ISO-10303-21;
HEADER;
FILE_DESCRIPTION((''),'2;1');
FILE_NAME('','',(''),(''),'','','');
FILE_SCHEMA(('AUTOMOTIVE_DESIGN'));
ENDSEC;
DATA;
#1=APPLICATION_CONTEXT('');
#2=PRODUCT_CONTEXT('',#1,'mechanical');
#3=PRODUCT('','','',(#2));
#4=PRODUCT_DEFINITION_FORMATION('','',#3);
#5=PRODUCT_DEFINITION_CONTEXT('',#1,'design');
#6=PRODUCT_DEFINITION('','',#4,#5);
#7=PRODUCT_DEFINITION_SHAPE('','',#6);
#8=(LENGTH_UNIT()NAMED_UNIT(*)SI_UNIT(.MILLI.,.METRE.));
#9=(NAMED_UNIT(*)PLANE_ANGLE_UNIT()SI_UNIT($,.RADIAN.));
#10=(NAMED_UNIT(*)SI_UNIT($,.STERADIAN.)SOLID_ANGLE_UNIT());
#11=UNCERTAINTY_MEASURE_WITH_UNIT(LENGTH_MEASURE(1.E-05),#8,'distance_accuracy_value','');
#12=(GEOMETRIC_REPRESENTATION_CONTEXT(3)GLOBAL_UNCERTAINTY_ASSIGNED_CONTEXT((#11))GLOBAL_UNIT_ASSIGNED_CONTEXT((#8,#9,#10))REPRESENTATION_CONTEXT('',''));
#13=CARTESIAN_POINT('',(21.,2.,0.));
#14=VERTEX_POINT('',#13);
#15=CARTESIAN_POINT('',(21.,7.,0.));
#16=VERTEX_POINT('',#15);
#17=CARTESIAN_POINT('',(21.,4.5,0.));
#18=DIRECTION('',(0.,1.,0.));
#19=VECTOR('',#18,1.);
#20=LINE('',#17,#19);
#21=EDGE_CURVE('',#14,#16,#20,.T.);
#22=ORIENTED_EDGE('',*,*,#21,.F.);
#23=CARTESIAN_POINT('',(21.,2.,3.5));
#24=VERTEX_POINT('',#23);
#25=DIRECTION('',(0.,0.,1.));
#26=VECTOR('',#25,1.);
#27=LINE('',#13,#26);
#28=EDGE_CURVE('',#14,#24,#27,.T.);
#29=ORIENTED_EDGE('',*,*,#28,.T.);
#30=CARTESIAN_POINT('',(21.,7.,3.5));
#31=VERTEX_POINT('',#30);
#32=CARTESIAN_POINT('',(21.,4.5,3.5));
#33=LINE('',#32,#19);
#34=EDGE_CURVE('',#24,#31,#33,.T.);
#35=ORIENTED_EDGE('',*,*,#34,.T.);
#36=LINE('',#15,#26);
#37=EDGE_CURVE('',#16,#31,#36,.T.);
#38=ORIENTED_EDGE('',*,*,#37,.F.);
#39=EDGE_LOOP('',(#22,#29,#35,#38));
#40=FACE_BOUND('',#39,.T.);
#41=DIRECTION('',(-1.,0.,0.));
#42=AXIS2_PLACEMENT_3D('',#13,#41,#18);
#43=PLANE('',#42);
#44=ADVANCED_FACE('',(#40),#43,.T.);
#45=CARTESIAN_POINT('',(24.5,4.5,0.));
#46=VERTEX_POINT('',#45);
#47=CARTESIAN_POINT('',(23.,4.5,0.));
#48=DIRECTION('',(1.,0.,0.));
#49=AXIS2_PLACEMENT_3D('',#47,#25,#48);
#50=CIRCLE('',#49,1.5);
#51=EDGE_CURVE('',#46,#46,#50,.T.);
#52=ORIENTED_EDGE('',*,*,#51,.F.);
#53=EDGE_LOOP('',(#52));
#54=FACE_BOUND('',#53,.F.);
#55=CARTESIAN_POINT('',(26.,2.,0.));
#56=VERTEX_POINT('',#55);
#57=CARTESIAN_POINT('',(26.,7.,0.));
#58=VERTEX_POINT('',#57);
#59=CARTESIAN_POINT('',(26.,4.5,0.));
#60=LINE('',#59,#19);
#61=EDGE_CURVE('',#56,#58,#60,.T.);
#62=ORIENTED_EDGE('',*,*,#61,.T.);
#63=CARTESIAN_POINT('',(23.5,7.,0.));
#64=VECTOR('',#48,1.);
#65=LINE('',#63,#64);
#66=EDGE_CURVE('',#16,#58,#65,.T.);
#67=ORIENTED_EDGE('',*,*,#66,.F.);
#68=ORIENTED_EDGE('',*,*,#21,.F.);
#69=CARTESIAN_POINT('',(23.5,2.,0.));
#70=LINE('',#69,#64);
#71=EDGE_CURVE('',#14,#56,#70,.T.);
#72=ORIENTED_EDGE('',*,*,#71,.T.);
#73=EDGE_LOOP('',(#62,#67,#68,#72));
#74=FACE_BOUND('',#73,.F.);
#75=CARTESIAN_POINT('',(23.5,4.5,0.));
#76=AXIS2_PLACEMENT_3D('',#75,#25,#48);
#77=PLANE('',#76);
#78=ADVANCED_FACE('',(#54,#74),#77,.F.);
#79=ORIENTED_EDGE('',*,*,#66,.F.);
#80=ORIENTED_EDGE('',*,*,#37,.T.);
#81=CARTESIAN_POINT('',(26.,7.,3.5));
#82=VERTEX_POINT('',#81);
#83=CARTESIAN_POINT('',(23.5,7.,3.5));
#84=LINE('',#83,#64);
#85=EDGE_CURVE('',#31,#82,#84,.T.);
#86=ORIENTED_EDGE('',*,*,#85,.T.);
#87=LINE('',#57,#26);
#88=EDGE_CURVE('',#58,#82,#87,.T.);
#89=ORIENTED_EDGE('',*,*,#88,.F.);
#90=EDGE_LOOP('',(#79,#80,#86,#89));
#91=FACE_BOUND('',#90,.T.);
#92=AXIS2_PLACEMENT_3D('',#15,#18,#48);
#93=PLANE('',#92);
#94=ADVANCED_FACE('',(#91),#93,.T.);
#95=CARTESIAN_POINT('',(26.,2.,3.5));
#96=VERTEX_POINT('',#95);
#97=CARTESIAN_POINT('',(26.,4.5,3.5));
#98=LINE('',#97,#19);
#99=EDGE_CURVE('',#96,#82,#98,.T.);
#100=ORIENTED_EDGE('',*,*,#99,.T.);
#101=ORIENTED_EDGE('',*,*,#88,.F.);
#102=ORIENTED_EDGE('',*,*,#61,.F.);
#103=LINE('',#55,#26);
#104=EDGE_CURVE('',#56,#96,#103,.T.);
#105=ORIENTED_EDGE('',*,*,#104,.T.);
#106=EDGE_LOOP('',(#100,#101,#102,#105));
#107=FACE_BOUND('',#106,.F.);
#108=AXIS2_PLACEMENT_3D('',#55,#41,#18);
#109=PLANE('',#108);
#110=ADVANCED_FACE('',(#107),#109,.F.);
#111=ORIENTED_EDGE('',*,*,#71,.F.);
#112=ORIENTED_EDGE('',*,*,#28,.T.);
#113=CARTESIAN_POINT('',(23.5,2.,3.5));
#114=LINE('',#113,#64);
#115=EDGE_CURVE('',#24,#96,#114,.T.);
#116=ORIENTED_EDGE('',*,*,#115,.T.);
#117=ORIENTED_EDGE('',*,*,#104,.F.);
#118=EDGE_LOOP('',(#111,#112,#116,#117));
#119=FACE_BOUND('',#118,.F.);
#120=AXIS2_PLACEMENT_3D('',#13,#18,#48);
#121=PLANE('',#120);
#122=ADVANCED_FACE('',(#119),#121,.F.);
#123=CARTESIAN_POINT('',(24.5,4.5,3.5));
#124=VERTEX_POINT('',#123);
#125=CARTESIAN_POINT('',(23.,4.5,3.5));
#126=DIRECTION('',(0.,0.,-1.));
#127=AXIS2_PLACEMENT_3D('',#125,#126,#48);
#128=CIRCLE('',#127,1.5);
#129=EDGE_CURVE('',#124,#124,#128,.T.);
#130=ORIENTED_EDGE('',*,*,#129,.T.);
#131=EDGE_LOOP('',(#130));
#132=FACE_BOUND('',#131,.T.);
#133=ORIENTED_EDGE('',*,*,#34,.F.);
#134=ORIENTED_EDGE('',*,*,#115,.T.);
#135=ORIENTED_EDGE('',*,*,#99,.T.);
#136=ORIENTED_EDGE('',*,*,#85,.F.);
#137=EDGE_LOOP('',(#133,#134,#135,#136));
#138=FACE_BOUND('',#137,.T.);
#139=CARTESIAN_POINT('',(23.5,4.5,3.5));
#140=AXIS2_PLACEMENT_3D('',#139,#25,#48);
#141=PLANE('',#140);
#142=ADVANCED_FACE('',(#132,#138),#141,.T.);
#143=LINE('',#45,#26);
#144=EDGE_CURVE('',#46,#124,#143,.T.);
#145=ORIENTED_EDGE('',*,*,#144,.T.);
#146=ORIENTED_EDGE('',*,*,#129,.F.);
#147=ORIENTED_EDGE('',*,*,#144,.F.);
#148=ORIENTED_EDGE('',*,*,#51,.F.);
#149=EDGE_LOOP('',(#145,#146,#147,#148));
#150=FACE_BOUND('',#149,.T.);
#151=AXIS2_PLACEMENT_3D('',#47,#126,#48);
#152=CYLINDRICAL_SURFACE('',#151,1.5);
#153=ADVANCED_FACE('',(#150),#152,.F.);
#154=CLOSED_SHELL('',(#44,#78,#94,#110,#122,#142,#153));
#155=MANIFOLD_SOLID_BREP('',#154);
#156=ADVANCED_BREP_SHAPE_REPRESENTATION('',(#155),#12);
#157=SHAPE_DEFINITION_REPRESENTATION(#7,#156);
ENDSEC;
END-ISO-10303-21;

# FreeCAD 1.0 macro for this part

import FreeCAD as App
import Part
import Sketcher

V = App.Vector

doc = App.newDocument("Part")
body = doc.addObject("PartDesign::Body", "Body")

# Sketch on XY plane
sketch1 = body.newObject("Sketcher::SketchObject", "Sketch")
sketch1.AttachmentSupport = (doc.getObject("XY_Plane"), [""])
sketch1.MapMode = "FlatFace"
sketch1.addGeometry(Part.Circle(V(23, 4.5, 0), V(0, 0, 1), 1.5), False)
sketch1.addConstraint([
    Sketcher.Constraint("Diameter", 0, 3.0),
    Sketcher.Constraint("DistanceX", -1, 1, 0, 3, 23.0),
    Sketcher.Constraint("DistanceY", -1, 1, 0, 3, 4.5),
])
pad1 = body.newObject("PartDesign::Pad", "Pad")
pad1.Profile = sketch1
pad1.Length = 10
body2 = doc.addObject("PartDesign::Body", "Body001")

# Sketch on XY plane
sketch2 = body2.newObject("Sketcher::SketchObject", "Sketch001")
sketch2.AttachmentSupport = (doc.getObject("XY_Plane001"), [""])
sketch2.MapMode = "FlatFace"
sketch2.addGeometry([
    Part.LineSegment(V(21, 7, 0), V(21, 2, 0)),
    Part.LineSegment(V(21, 2, 0), V(26, 2, 0)),
    Part.LineSegment(V(26, 2, 0), V(26, 7, 0)),
    Part.LineSegment(V(26, 7, 0), V(21, 7, 0)),
], False)
sketch2.addConstraint([
    Sketcher.Constraint("Coincident", 0, 2, 1, 1),
    Sketcher.Constraint("Coincident", 1, 2, 2, 1),
    Sketcher.Constraint("Coincident", 2, 2, 3, 1),
    Sketcher.Constraint("Coincident", 3, 2, 0, 1),
    Sketcher.Constraint("Vertical", 0),
    Sketcher.Constraint("Horizontal", 1),
    Sketcher.Constraint("Vertical", 2),
    Sketcher.Constraint("Horizontal", 3),
    Sketcher.Constraint("Equal", 3, 0),
    Sketcher.Constraint("DistanceX", 1, 1, 1, 2, 5.0),
    Sketcher.Constraint("DistanceX", -1, 1, 0, 2, 21.0),
    Sketcher.Constraint("DistanceY", -1, 1, 0, 2, 2.0),
])
pad2 = body2.newObject("PartDesign::Pad", "Pad001")
pad2.Profile = sketch2
pad2.Length = 3.5
doc.recompute()

boolean = body2.newObject("PartDesign::Boolean", "Boolean")
boolean.Type = "Cut"
boolean.addObjects([body])

doc.recompute()
